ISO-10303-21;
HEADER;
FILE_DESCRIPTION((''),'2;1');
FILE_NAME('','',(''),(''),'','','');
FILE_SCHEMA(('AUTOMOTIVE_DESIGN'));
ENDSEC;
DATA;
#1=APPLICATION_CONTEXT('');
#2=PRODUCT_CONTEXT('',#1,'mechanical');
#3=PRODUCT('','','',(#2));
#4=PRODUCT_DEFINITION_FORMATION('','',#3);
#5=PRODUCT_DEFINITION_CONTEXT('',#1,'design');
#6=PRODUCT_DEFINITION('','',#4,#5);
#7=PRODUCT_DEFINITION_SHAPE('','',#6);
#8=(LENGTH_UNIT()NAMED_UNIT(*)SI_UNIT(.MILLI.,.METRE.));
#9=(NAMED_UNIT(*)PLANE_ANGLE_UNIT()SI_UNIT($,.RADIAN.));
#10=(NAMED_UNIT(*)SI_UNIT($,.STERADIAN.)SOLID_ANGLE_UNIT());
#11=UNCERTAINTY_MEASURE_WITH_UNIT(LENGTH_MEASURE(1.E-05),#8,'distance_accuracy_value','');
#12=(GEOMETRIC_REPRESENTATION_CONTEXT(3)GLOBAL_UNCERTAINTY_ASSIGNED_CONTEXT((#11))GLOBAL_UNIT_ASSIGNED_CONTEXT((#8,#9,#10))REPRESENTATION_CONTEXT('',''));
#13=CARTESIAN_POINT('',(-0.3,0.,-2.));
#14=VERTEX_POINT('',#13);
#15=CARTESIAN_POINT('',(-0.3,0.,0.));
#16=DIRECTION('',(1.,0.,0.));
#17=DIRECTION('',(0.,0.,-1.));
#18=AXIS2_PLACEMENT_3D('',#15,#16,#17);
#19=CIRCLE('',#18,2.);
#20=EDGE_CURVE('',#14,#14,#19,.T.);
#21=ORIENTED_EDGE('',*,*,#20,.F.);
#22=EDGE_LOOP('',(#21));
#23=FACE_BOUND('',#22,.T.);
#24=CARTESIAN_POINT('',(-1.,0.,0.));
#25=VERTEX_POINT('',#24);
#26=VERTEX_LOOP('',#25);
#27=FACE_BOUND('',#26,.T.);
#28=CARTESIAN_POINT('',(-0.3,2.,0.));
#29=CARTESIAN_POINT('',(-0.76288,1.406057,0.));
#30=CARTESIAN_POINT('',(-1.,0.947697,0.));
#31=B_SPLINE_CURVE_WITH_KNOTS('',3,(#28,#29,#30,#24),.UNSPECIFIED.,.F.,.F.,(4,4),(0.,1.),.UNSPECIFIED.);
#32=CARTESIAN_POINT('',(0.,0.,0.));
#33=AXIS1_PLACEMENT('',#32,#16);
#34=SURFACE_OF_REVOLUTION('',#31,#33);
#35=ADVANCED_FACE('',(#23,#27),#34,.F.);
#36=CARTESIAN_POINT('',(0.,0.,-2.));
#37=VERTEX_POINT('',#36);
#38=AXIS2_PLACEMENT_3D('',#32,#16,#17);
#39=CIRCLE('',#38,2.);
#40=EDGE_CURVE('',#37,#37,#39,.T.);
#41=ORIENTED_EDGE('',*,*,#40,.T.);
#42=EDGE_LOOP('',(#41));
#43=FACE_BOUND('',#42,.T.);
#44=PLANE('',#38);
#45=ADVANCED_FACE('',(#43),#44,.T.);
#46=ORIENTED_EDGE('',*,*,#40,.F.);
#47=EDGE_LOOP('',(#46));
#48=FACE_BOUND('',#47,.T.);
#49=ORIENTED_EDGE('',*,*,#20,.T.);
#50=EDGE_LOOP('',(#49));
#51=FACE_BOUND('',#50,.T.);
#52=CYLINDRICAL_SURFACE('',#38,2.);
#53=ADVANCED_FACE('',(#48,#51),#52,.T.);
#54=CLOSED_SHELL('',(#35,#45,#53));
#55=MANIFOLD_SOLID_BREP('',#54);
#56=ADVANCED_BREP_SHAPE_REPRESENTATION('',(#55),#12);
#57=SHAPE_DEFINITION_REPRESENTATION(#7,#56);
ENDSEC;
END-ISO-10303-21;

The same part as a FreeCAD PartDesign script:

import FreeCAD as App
import Part
import Sketcher
from FreeCAD import Vector

doc = App.newDocument("Part")
body = doc.addObject("PartDesign::Body", "Body")

# Sketch on XY plane
sketch1 = body.newObject("Sketcher::SketchObject", "Sketch")
sketch1.AttachmentSupport = (doc.getObject("XY_Plane"), [""])
sketch1.MapMode = "FlatFace"
sketch1.addGeometry(Part.LineSegment(Vector(0, 2, 0), Vector(-0.3, 2, 0)), False)
sketch1.addGeometry(Part.BSplineCurve([Vector(-0.3, 2, 0), Vector(-0.76288, 1.406057, 0), Vector(-1, 0.947697, 0), Vector(-1, 0, 0)], [4, 4], [0, 1], False, 3, [1, 1, 1, 1], False), False)
sketch1.addGeometry(Part.LineSegment(Vector(-1, 0, 0), Vector(0, 0, 0)), False)
sketch1.addGeometry(Part.LineSegment(Vector(0, 0, 0), Vector(0, 2, 0)), False)
sketch1.addConstraint(Sketcher.Constraint("Block", 1))
sketch1.addConstraint(Sketcher.Constraint("Coincident", 0, 2, 1, 1))
sketch1.addConstraint(Sketcher.Constraint("Coincident", 1, 2, 2, 1))
sketch1.addConstraint(Sketcher.Constraint("Coincident", 2, 2, 3, 1))
sketch1.addConstraint(Sketcher.Constraint("Coincident", 3, 2, 0, 1))
sketch1.addConstraint(Sketcher.Constraint("Horizontal", 0))
sketch1.addConstraint(Sketcher.Constraint("Horizontal", 2))
sketch1.addConstraint(Sketcher.Constraint("Vertical", 3))
sketch1.addConstraint(Sketcher.Constraint("PointOnObject", 3, 2, -2))
revolution = body.newObject("PartDesign::Revolution", "Revolution")
revolution.Profile = sketch1
revolution.ReferenceAxis = (sketch1, ["H_Axis"])
revolution.Angle = 360

doc.recompute()
